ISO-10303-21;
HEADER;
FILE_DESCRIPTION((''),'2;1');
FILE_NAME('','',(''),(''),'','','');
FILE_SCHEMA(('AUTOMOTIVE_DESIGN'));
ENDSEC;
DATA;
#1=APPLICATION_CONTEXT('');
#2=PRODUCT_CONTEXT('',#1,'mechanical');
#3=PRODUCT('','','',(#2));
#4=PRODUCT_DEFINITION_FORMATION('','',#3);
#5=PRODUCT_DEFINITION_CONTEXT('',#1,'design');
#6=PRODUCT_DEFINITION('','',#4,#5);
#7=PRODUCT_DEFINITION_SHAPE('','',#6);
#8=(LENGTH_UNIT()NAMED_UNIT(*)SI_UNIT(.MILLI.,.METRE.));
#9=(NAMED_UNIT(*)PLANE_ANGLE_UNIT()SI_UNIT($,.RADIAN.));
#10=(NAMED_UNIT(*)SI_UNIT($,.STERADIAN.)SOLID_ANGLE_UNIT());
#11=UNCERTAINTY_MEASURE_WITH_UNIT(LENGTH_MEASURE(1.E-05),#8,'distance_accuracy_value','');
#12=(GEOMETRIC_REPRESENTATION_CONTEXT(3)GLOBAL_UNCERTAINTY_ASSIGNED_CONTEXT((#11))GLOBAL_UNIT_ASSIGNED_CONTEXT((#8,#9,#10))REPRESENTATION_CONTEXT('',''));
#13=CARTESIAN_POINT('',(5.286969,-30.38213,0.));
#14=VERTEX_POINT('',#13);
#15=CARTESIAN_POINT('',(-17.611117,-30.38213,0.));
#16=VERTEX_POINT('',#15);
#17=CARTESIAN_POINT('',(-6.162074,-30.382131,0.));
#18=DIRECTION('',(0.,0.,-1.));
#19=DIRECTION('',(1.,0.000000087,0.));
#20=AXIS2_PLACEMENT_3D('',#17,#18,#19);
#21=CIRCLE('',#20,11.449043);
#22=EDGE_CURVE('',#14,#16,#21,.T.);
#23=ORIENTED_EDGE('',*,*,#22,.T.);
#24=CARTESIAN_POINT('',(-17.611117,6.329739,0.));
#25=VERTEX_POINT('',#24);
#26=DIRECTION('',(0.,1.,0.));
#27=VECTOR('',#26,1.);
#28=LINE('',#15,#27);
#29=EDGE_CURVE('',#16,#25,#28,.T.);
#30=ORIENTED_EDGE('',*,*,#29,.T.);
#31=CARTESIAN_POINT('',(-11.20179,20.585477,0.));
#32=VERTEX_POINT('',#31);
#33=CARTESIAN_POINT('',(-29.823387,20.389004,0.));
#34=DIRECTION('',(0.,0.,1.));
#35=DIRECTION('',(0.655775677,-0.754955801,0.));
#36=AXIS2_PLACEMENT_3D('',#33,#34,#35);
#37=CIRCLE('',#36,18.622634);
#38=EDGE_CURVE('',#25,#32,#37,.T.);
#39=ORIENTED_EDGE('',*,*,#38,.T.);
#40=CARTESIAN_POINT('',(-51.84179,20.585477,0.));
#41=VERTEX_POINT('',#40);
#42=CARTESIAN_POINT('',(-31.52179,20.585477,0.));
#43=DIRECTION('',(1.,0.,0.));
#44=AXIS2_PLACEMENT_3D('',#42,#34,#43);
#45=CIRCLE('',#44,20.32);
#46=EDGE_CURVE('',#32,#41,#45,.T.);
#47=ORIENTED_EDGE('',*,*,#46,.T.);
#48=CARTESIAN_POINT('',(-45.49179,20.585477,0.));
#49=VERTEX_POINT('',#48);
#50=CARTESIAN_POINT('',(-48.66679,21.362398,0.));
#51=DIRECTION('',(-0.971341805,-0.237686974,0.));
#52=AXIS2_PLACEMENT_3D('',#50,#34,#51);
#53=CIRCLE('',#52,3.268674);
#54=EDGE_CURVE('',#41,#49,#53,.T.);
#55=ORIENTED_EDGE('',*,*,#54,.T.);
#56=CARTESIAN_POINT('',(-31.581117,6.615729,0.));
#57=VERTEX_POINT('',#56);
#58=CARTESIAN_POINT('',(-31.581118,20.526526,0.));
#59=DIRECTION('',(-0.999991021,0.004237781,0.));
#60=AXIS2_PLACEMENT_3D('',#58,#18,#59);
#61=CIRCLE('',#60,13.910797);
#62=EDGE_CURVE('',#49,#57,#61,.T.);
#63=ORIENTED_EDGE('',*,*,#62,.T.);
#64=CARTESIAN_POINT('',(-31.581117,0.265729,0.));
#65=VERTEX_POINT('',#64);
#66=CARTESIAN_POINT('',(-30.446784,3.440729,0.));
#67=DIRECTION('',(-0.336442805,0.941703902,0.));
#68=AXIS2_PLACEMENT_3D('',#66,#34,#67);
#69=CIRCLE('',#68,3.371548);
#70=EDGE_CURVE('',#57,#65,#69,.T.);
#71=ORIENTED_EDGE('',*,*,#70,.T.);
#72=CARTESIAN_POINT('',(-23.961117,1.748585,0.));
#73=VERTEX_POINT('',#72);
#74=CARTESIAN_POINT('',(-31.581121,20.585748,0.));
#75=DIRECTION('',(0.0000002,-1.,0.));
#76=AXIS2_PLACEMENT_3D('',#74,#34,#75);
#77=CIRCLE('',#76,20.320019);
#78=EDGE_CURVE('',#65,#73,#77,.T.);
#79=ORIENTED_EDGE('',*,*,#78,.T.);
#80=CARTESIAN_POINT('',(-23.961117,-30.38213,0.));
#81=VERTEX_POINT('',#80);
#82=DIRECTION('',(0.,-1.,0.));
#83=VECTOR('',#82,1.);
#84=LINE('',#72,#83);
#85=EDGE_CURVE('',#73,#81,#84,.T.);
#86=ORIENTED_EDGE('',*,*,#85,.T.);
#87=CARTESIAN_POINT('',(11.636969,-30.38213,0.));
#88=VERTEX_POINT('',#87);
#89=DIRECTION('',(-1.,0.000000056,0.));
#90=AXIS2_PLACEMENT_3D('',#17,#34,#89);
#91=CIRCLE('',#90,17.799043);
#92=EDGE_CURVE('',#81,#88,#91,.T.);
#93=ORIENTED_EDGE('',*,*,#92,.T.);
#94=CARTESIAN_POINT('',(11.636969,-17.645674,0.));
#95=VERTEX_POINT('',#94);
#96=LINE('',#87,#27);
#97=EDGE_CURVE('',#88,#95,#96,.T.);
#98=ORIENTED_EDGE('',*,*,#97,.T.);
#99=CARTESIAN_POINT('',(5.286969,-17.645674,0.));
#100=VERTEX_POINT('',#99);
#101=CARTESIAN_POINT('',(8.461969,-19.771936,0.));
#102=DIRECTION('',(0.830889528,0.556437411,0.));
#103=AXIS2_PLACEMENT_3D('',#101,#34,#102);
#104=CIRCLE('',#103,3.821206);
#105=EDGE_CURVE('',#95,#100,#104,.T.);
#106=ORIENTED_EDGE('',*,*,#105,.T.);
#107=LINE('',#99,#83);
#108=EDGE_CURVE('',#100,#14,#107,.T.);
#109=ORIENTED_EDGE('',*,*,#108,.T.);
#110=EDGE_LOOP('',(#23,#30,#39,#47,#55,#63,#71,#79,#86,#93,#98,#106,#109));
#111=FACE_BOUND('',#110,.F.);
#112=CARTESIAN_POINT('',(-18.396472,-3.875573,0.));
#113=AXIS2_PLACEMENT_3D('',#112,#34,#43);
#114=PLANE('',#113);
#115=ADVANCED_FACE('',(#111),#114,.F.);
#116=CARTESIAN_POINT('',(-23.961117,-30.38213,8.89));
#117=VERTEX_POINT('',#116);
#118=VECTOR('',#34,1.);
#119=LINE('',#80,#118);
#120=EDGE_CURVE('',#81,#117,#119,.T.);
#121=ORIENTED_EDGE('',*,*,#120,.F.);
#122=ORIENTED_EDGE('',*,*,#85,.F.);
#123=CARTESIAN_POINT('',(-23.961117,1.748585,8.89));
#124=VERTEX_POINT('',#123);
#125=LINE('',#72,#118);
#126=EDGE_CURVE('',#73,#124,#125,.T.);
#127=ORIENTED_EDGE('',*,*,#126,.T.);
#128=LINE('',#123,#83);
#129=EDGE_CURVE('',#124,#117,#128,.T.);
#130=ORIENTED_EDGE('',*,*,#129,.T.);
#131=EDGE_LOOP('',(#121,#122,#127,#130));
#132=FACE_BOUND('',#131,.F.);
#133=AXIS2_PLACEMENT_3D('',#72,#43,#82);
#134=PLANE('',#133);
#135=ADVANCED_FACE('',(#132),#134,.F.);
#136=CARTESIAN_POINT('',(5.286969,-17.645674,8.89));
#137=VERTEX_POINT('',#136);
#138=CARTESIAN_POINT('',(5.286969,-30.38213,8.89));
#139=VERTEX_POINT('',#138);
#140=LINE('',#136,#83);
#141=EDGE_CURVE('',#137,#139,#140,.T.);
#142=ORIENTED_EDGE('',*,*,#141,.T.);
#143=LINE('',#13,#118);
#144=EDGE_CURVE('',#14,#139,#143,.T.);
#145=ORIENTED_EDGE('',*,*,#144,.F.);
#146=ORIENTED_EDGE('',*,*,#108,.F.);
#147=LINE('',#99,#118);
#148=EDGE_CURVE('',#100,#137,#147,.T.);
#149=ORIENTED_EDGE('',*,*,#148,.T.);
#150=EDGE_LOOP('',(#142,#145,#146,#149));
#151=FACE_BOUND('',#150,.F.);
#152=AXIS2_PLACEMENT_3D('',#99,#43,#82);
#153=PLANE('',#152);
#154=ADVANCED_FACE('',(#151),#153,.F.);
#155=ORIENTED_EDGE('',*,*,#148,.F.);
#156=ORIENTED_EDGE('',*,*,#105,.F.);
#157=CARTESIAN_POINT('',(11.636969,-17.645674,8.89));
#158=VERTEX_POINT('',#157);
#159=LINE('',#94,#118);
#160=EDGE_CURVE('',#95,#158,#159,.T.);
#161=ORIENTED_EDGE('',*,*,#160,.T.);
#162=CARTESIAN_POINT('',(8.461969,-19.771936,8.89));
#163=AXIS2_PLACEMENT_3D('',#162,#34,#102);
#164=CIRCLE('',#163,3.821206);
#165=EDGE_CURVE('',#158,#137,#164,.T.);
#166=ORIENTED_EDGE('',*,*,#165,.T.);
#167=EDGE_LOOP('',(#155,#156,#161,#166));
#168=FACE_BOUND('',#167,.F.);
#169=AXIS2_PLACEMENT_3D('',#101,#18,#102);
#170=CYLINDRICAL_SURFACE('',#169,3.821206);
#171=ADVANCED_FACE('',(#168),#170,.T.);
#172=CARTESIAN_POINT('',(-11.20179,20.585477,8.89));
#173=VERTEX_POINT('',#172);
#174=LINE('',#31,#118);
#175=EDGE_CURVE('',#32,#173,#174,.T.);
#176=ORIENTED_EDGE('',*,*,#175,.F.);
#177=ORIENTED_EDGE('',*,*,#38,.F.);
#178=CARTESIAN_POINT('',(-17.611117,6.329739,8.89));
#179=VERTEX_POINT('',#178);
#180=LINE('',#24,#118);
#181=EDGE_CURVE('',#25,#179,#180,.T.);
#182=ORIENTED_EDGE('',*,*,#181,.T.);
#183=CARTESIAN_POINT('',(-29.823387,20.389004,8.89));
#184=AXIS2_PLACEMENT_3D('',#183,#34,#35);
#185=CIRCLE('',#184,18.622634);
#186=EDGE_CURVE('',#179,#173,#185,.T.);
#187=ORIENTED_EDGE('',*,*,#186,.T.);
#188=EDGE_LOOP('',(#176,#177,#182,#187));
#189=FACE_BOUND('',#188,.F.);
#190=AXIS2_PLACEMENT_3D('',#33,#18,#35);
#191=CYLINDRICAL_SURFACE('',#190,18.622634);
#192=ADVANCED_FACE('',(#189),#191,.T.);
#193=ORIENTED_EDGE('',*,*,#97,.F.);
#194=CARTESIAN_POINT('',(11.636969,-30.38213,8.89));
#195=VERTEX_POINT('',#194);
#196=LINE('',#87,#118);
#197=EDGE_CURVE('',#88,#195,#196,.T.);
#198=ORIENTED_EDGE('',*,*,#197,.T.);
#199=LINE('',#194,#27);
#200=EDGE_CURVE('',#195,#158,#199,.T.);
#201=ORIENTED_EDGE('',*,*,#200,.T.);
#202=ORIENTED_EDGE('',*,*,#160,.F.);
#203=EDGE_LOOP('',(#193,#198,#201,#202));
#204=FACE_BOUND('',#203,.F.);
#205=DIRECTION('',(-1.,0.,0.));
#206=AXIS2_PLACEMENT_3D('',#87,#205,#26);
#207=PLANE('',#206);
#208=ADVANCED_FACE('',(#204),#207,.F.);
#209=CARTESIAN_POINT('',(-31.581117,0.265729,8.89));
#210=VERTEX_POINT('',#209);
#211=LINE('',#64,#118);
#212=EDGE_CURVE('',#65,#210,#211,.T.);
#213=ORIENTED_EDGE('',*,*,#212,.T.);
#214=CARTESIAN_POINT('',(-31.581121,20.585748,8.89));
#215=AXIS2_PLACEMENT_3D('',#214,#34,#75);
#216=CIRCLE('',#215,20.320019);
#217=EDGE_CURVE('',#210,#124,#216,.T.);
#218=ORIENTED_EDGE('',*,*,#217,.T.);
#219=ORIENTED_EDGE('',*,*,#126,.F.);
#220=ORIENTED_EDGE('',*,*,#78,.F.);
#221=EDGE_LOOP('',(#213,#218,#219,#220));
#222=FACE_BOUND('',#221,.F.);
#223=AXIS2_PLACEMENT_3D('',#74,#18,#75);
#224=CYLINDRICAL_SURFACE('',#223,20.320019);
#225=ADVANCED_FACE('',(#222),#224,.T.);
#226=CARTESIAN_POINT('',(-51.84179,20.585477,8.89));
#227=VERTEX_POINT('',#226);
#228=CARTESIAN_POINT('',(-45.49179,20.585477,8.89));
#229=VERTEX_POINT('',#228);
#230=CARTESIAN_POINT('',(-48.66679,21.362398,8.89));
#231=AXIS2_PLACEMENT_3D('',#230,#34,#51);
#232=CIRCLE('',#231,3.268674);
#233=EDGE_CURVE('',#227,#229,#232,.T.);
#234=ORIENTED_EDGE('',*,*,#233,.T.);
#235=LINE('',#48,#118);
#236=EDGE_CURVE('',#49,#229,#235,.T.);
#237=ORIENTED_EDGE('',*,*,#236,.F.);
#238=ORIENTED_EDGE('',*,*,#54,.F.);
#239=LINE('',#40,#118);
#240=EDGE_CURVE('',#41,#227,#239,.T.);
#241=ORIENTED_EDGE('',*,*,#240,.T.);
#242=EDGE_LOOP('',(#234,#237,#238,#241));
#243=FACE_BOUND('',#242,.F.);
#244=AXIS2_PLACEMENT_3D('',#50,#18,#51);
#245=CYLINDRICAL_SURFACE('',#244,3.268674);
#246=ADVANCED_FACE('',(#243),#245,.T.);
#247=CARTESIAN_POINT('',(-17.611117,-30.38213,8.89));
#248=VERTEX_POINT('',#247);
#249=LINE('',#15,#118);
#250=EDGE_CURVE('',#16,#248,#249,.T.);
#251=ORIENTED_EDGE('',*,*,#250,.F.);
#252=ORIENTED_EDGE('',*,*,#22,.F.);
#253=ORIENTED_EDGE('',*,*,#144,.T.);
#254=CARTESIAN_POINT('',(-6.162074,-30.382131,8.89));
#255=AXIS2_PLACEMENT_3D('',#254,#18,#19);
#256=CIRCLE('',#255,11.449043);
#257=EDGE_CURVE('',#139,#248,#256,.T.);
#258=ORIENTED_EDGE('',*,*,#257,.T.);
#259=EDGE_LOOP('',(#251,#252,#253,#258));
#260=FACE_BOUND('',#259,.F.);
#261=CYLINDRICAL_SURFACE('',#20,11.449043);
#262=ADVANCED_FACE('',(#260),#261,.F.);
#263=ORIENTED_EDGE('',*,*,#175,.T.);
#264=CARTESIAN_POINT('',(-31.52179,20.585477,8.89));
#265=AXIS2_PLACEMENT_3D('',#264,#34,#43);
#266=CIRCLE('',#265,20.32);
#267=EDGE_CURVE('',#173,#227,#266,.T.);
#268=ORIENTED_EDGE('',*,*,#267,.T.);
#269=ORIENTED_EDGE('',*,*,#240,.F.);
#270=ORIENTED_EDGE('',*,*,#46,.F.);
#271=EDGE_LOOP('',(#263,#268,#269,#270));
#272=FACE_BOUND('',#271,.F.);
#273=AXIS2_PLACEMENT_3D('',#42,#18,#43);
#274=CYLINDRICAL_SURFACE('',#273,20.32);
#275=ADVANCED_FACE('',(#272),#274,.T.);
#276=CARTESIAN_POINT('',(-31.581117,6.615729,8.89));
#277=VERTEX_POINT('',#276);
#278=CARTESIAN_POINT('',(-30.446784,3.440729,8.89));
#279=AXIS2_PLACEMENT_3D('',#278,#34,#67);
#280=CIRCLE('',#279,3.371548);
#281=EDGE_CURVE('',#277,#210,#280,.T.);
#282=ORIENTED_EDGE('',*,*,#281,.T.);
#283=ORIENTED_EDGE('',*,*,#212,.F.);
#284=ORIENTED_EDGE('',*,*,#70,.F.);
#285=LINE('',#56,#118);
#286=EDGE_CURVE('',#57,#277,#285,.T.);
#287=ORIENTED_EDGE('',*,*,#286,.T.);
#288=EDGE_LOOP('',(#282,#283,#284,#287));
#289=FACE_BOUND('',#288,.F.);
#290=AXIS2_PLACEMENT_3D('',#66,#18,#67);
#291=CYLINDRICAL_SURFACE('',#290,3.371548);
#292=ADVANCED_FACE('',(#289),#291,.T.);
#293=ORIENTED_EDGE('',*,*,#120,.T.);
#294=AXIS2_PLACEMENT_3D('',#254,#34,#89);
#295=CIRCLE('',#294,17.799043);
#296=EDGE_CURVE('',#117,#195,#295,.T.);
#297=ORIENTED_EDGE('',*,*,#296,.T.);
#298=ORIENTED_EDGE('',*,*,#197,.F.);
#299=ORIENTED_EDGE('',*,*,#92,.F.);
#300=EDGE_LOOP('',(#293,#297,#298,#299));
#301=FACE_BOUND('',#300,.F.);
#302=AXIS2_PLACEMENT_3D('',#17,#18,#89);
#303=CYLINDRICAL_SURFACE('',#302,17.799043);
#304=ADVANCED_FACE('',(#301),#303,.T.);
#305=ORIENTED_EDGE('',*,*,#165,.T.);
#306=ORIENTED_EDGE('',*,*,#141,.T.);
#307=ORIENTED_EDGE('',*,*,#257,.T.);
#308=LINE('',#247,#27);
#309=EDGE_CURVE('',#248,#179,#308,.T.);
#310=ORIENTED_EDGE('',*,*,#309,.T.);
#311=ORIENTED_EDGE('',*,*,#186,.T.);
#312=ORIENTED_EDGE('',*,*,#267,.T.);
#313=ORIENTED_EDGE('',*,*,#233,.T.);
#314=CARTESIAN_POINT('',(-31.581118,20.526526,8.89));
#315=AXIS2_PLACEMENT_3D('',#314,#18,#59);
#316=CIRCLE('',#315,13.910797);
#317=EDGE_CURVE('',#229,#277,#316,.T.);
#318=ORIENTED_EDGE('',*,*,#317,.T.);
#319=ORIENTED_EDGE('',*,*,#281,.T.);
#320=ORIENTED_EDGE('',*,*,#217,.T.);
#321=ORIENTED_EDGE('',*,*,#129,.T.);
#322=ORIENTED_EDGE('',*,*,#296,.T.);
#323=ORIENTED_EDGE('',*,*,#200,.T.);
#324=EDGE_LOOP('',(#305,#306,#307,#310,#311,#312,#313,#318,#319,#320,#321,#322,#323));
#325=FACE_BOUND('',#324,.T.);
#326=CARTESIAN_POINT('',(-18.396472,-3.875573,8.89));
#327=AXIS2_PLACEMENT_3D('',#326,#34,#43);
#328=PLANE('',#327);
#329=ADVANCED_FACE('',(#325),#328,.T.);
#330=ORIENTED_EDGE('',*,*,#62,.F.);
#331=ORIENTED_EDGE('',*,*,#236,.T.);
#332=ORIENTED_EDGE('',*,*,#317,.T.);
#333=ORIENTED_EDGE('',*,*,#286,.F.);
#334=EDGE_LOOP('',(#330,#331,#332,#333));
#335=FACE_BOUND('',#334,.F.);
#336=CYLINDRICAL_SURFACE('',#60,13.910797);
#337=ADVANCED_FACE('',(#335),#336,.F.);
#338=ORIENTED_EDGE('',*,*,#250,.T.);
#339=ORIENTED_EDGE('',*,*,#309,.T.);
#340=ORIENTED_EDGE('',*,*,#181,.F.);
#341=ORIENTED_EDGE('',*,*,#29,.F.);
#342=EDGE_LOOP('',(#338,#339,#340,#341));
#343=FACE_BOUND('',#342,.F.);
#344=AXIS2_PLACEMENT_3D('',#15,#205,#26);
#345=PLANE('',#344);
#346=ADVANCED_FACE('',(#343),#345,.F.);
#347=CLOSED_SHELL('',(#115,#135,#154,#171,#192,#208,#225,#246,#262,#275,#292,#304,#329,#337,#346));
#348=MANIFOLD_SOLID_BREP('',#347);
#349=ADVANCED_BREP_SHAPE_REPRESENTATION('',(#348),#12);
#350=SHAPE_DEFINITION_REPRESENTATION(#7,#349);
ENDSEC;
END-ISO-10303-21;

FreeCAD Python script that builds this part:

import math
import FreeCAD as App
import Part
import Sketcher
from FreeCAD import Vector
Q = App.Units.Quantity

doc = App.newDocument("Part")
body = doc.addObject("PartDesign::Body", "Body")

sketch1 = body.newObject("Sketcher::SketchObject", "Sketch")
sketch1.AttachmentSupport = (doc.getObject("XY_Plane"), [""])
sketch1.MapMode = "FlatFace"
sketch1.addGeometry([
    Part.ArcOfCircle(Part.Circle(Vector(-31.6, 20.6, 0), Vector(0, 0, 1), 20.3), math.radians(-90), math.radians(-68)),
    Part.LineSegment(Vector(-24, 1.7, 0), Vector(-24, -30.4, 0)),
    Part.ArcOfCircle(Part.Circle(Vector(-6.2, -30.4, 0), Vector(0, 0, 1), 17.8), math.radians(180), math.radians(360)),
    Part.LineSegment(Vector(11.6, -30.4, 0), Vector(11.6, -17.6, 0)),
    Part.ArcOfCircle(Part.Circle(Vector(8.5, -19.8, 0), Vector(0, 0, 1), 3.8), math.radians(34), math.radians(146)),
    Part.LineSegment(Vector(5.3, -17.6, 0), Vector(5.3, -30.4, 0)),
    Part.ArcOfCircle(Part.Circle(Vector(-6.2, -30.4, 0), Vector(0, 0, 1), 11.4), math.radians(180), math.radians(360)),
    Part.LineSegment(Vector(-17.6, -30.4, 0), Vector(-17.6, 6.3, 0)),
    Part.ArcOfCircle(Part.Circle(Vector(-29.8, 20.4, 0), Vector(0, 0, 1), 18.6), math.radians(-49), math.radians(1)),
    Part.ArcOfCircle(Part.Circle(Vector(-31.5, 20.6, 0), Vector(0, 0, 1), 20.3), math.radians(0), math.radians(180)),
    Part.ArcOfCircle(Part.Circle(Vector(-48.7, 21.4, 0), Vector(0, 0, 1), 3.3), math.radians(-166), math.radians(-14)),
    Part.ArcOfCircle(Part.Circle(Vector(-31.6, 20.5, 0), Vector(0, 0, 1), 13.9), math.radians(-90), math.radians(180)),
    Part.ArcOfCircle(Part.Circle(Vector(-30.4, 3.4, 0), Vector(0, 0, 1), 3.4), math.radians(110), math.radians(250)),
], False)
sketch1.addConstraint([
    Sketcher.Constraint("Coincident", 0, 2, 1, 1),
    Sketcher.Constraint("Tangent", 1, 2, 2, 1),
    Sketcher.Constraint("Tangent", 2, 2, 3, 1),
    Sketcher.Constraint("Coincident", 3, 2, 4, 1),
    Sketcher.Constraint("Coincident", 4, 2, 5, 1),
    Sketcher.Constraint("Tangent", 5, 2, 6, 2),
    Sketcher.Constraint("Tangent", 6, 1, 7, 1),
    Sketcher.Constraint("Coincident", 7, 2, 8, 1),
    Sketcher.Constraint("Coincident", 8, 2, 9, 1),
    Sketcher.Constraint("Coincident", 9, 2, 10, 1),
    Sketcher.Constraint("Coincident", 10, 2, 11, 2),
    Sketcher.Constraint("Coincident", 11, 1, 12, 1),
    Sketcher.Constraint("Coincident", 12, 2, 0, 1),
    Sketcher.Constraint("Vertical", 1),
    Sketcher.Constraint("Vertical", 3),
    Sketcher.Constraint("Vertical", 5),
    Sketcher.Constraint("Vertical", 7),
    Sketcher.Constraint("Coincident", 6, 3, 2, 3),
    Sketcher.Constraint("Horizontal", 3, 2, 4, 2),
    Sketcher.Constraint("Horizontal", 9, 3, 8, 2),
    Sketcher.Constraint("Horizontal", 8, 2, 9, 2),
    Sketcher.Constraint("Horizontal", 9, 2, 10, 2),
    Sketcher.Constraint("Vertical", 11, 1, 12, 2),
    Sketcher.Constraint("Radius", 9, Q("0.8 in")),
    Sketcher.Constraint("DistanceX", 11, 3, 0, 2, Q("0.3 in")),
    Sketcher.Constraint("DistanceX", 0, 3, 0, 2, Q("0.3000002 in")),
    Sketcher.Constraint("DistanceX", 11, 1, 0, 2, Q("0.3 in")),
    Sketcher.Constraint("DistanceX", 4, 2, 3, 2, Q("0.25 in")),
    Sketcher.Constraint("DistanceX", 9, 2, 10, 2, Q("0.25 in")),
    Sketcher.Constraint("DistanceY", 12, 2, 11, 1, Q("0.25 in")),
    Sketcher.Constraint("Radius", 0, Q("20.320019 mm")),
    Sketcher.Constraint("Radius", 12, Q("3.371548 mm")),
    Sketcher.Constraint("Radius", 2, Q("17.799043 mm")),
    Sketcher.Constraint("Radius", 4, Q("3.821206 mm")),
    Sketcher.Constraint("Radius", 8, Q("18.622634 mm")),
    Sketcher.Constraint("Radius", 10, Q("3.268674 mm")),
    Sketcher.Constraint("Radius", 11, Q("13.910797 mm")),
    Sketcher.Constraint("DistanceY", 7, 1, 7, 2, Q("36.711869 mm")),
    Sketcher.Constraint("DistanceY", -1, 1, 10, 3, Q("21.362398 mm")),
    Sketcher.Constraint("DistanceY", 1, 2, 1, 1, Q("32.130715 mm")),
    Sketcher.Constraint("DistanceY", 3, 1, 3, 2, Q("12.736456 mm")),
    Sketcher.Constraint("DistanceX", 0, 3, -1, 1, Q("31.581121 mm")),
    Sketcher.Constraint("DistanceY", 2, 3, -1, 1, Q("30.382131 mm")),
])
pad1 = body.newObject("PartDesign::Pad", "Pad")
pad1.Profile = sketch1
pad1.Length = Q("0.35 in")

doc.recompute()
